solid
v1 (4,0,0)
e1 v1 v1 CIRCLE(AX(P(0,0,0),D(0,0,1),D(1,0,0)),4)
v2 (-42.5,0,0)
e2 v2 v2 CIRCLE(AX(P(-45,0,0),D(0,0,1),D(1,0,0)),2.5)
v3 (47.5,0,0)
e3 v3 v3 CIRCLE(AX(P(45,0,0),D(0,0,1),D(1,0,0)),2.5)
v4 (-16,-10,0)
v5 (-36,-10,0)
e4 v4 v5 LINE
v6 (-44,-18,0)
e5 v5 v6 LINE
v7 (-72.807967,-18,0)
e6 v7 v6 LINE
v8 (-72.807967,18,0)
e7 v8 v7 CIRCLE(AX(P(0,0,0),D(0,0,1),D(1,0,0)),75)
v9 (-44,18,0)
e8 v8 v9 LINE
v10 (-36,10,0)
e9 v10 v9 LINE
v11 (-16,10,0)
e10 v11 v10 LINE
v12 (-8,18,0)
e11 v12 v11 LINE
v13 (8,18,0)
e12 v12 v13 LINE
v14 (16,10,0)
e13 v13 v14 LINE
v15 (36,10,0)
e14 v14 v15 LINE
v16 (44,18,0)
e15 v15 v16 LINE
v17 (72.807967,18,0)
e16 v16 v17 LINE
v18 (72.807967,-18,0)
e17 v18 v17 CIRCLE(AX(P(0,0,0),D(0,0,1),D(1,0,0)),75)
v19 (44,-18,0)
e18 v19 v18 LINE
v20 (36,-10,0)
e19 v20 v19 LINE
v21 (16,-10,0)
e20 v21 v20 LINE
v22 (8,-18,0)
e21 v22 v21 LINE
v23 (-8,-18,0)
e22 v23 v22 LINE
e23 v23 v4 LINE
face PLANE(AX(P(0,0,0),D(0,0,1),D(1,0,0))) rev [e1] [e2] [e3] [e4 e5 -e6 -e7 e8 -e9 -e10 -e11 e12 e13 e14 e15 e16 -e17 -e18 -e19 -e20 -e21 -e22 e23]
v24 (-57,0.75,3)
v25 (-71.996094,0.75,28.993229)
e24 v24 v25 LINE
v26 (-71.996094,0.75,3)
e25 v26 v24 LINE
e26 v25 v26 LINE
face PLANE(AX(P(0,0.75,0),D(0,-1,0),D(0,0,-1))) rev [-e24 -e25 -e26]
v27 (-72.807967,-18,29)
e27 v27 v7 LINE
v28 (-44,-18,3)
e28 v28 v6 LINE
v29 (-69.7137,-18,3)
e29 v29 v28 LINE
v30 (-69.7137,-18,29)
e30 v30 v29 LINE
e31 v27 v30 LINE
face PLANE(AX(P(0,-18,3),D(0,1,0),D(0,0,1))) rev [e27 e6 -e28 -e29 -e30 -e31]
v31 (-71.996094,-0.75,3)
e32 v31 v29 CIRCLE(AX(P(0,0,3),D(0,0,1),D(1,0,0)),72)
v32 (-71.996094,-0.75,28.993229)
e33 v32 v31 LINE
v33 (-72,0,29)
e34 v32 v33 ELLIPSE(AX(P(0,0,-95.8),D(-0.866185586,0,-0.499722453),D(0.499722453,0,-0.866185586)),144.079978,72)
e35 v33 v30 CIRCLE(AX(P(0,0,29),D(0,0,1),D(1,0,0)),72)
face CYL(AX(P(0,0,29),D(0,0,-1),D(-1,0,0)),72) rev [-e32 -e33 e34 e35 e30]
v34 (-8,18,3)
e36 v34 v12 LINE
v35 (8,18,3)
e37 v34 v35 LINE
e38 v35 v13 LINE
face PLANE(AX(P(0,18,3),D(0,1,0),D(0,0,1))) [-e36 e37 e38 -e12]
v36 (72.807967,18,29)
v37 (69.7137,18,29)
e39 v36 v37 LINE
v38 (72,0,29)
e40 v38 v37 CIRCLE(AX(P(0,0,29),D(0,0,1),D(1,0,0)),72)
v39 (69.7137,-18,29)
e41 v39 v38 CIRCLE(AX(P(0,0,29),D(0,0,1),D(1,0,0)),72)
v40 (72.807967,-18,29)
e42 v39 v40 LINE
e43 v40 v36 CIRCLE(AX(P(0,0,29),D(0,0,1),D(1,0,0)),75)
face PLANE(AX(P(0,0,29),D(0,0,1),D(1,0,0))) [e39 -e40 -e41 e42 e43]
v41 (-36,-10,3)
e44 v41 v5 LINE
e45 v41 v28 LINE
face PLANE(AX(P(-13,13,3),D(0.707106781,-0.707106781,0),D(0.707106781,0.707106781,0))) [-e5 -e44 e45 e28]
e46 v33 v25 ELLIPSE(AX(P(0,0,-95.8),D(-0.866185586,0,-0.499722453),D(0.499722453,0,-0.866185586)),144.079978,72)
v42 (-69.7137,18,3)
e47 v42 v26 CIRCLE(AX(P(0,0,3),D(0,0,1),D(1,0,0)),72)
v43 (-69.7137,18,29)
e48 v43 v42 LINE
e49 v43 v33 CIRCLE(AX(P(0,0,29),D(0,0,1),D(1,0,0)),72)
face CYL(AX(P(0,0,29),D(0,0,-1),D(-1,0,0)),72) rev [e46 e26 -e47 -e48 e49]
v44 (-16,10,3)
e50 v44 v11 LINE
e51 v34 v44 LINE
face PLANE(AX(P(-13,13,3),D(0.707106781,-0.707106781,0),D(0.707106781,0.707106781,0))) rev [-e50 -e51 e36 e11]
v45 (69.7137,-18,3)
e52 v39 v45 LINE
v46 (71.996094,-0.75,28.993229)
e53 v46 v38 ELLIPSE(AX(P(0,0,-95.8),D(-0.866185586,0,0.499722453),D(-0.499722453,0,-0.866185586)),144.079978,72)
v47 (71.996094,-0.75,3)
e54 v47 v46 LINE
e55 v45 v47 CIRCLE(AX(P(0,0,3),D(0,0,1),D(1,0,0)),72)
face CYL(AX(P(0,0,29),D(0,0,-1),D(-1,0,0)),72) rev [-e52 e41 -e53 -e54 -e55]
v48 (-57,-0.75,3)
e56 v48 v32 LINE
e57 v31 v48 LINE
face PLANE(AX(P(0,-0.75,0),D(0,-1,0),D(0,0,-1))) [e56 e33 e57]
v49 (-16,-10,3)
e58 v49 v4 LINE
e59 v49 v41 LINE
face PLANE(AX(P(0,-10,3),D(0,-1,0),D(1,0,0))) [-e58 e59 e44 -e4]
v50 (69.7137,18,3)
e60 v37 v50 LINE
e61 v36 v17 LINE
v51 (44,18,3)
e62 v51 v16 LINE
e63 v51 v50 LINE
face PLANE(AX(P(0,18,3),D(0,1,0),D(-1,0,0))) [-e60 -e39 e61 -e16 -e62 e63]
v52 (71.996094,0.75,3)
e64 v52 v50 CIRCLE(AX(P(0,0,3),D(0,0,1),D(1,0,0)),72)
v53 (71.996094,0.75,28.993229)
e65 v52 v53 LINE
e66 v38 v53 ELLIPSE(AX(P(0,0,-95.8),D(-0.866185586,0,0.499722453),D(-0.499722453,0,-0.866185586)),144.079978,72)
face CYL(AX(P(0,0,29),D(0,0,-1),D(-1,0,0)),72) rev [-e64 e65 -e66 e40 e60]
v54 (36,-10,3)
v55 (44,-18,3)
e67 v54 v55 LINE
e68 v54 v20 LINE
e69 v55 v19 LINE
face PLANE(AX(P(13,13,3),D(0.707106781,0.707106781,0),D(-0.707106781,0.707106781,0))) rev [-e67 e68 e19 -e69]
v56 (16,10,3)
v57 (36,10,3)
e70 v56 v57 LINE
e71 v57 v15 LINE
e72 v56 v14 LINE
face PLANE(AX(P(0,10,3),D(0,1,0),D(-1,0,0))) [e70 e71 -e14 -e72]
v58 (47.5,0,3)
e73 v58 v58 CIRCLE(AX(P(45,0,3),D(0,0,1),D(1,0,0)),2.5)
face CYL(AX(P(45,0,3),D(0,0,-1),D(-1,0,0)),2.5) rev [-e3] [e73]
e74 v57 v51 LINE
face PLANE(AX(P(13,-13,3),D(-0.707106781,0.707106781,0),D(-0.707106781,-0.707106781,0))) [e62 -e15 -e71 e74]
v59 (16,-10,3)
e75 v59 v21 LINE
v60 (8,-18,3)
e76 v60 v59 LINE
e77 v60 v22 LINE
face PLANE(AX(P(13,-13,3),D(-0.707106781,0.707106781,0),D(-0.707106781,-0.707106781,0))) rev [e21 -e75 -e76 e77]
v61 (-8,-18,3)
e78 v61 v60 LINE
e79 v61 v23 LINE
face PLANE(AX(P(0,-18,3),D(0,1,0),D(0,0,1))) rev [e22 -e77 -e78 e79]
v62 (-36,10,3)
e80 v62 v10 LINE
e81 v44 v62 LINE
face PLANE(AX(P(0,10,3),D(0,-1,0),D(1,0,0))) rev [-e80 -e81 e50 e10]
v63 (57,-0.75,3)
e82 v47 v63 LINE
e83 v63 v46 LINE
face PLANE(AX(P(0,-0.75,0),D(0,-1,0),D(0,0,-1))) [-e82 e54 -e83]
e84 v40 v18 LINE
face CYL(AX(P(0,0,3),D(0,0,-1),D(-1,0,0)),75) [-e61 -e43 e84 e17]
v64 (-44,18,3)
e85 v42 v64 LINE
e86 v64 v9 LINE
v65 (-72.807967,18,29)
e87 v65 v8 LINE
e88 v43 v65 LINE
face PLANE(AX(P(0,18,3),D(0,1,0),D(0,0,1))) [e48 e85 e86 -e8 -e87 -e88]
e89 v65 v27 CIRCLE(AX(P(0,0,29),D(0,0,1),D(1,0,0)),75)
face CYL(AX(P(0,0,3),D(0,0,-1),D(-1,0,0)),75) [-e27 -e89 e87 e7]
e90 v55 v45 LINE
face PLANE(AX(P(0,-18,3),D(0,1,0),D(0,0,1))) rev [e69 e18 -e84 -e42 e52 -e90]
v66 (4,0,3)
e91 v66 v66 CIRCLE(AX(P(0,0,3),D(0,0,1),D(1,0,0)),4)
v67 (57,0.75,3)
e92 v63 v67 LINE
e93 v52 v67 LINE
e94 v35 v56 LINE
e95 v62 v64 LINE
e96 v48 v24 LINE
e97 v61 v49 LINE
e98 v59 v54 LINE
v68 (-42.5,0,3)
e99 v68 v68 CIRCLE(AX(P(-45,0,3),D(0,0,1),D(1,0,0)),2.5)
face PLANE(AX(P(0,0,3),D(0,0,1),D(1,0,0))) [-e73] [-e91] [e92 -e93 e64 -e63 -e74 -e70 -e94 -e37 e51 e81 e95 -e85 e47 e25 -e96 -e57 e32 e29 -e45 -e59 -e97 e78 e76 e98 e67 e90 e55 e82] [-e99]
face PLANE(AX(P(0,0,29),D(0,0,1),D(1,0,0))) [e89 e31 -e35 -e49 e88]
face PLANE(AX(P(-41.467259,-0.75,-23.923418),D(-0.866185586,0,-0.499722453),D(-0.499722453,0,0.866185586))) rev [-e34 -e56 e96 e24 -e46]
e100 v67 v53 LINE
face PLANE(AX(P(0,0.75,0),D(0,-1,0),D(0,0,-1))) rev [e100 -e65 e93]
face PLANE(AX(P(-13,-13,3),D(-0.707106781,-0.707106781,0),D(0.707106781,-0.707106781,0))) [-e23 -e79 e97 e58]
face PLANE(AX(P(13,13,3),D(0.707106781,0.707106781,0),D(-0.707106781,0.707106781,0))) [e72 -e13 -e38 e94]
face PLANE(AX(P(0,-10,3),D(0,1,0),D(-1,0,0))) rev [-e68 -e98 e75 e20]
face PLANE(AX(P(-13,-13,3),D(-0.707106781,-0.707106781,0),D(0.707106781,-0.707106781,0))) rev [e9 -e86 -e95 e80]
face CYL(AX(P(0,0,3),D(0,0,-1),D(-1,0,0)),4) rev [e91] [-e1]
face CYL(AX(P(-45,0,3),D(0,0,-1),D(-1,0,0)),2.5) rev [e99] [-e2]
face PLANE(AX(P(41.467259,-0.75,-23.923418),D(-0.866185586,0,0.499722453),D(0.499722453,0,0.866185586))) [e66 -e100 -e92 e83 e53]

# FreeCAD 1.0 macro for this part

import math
import FreeCAD as App
import Part
import Sketcher
Q = App.Units.Quantity


def add_polygon(sketch, points):
    """Adds a closed chain of lines whose ends are joined by coincident constraints."""
    first, n = sketch.GeometryCount, len(points)
    for a, b in zip(points, points[1:] + points[:1]):
        sketch.addGeometry(Part.LineSegment(App.Vector(*a, 0), App.Vector(*b, 0)), False)
    for i in range(n):
        sketch.addConstraint(Sketcher.Constraint("Coincident", first + i, 2, first + (i + 1) % n, 1))

doc = App.newDocument("Part")
params = doc.addObject("Spreadsheet::Sheet", "Params")
for row, (alias, value) in enumerate([
    ("sketch1_diameter", "5 mm"),
    ("sketch1_diameter2", "8 mm"),
    ("sketch1_radius", "75 mm"),
    ("sketch1_width", "20 mm"),
    ("sketch1_width2", "16 mm"),
    ("pad1_length", "3 mm"),
    ("sketch2_radius", "72 mm"),
    ("sketch2_radius2", "75 mm"),
    ("pad2_length", "26 mm"),
    ("sketch3_width", "15 mm"),
    ("sketch3_height", "26 mm"),
    ("pad3_length", "1.5 mm"),
], start=1):
    params.set(f"A{row}", alias)
    params.set(f"B{row}", "=" + value)
    params.setAlias(f"B{row}", alias)

body = doc.addObject("PartDesign::Body", "Body")

# Sketch on XY plane
sketch1 = body.newObject("Sketcher::SketchObject", "Sketch")
sketch1.AttachmentSupport = (doc.getObject("XY_Plane"), [""])
sketch1.MapMode = "FlatFace"
sketch1.addGeometry([
    Part.LineSegment(App.Vector(-44, 18, 0), App.Vector(-72.8, 18, 0)),  # 0
    Part.ArcOfCircle(Part.Circle(App.Vector(0, 0, 0), App.Vector(0, 0, 1), 75), math.radians(166), math.radians(194)),  # 1
    Part.LineSegment(App.Vector(-72.8, -18, 0), App.Vector(-44, -18, 0)),  # 2
    Part.LineSegment(App.Vector(-44, -18, 0), App.Vector(-36, -10, 0)),  # 3
    Part.LineSegment(App.Vector(-36, -10, 0), App.Vector(-16, -10, 0)),  # 4
    Part.LineSegment(App.Vector(-16, -10, 0), App.Vector(-8, -18, 0)),  # 5
    Part.LineSegment(App.Vector(-8, -18, 0), App.Vector(8, -18, 0)),  # 6
    Part.LineSegment(App.Vector(8, -18, 0), App.Vector(16, -10, 0)),  # 7
    Part.LineSegment(App.Vector(16, -10, 0), App.Vector(36, -10, 0)),  # 8
    Part.LineSegment(App.Vector(36, -10, 0), App.Vector(44, -18, 0)),  # 9
    Part.LineSegment(App.Vector(44, -18, 0), App.Vector(72.8, -18, 0)),  # 10
    Part.ArcOfCircle(Part.Circle(App.Vector(0, 0, 0), App.Vector(0, 0, 1), 75), math.radians(-13.89), math.radians(0)),  # 11
    Part.ArcOfCircle(Part.Circle(App.Vector(0, 0, 0), App.Vector(0, 0, 1), 75), math.radians(0), math.radians(13.89)),  # 12
    Part.LineSegment(App.Vector(72.8, 18, 0), App.Vector(44, 18, 0)),  # 13
    Part.LineSegment(App.Vector(44, 18, 0), App.Vector(36, 10, 0)),  # 14
    Part.LineSegment(App.Vector(36, 10, 0), App.Vector(16, 10, 0)),  # 15
    Part.LineSegment(App.Vector(16, 10, 0), App.Vector(8, 18, 0)),  # 16
    Part.LineSegment(App.Vector(8, 18, 0), App.Vector(-8, 18, 0)),  # 17
    Part.LineSegment(App.Vector(-8, 18, 0), App.Vector(-16, 10, 0)),  # 18
    Part.LineSegment(App.Vector(-16, 10, 0), App.Vector(-36, 10, 0)),  # 19
    Part.LineSegment(App.Vector(-36, 10, 0), App.Vector(-44, 18, 0)),  # 20
    Part.Circle(App.Vector(-45, 0, 0), App.Vector(0, 0, 1), 2.5),  # 21
    Part.Circle(App.Vector(0, 0, 0), App.Vector(0, 0, 1), 4),  # 22
    Part.Circle(App.Vector(45, 0, 0), App.Vector(0, 0, 1), 2.5),  # 23
], False)
sketch1.addConstraint([
    Sketcher.Constraint("Coincident", 0, 2, 1, 1),
    Sketcher.Constraint("Coincident", 1, 2, 2, 1),
    Sketcher.Constraint("Coincident", 2, 2, 3, 1),
    Sketcher.Constraint("Coincident", 3, 2, 4, 1),
    Sketcher.Constraint("Coincident", 4, 2, 5, 1),
    Sketcher.Constraint("Coincident", 5, 2, 6, 1),
    Sketcher.Constraint("Coincident", 6, 2, 7, 1),
    Sketcher.Constraint("Coincident", 7, 2, 8, 1),
    Sketcher.Constraint("Coincident", 8, 2, 9, 1),
    Sketcher.Constraint("Coincident", 9, 2, 10, 1),
    Sketcher.Constraint("Coincident", 10, 2, 11, 1),
    Sketcher.Constraint("Tangent", 11, 2, 12, 1),
    Sketcher.Constraint("Coincident", 12, 2, 13, 1),
    Sketcher.Constraint("Coincident", 13, 2, 14, 1),
    Sketcher.Constraint("Coincident", 14, 2, 15, 1),
    Sketcher.Constraint("Coincident", 15, 2, 16, 1),
    Sketcher.Constraint("Coincident", 16, 2, 17, 1),
    Sketcher.Constraint("Coincident", 17, 2, 18, 1),
    Sketcher.Constraint("Coincident", 18, 2, 19, 1),
    Sketcher.Constraint("Coincident", 19, 2, 20, 1),
    Sketcher.Constraint("Coincident", 20, 2, 0, 1),
    Sketcher.Constraint("Horizontal", 0),
    Sketcher.Constraint("Horizontal", 2),
    Sketcher.Constraint("Horizontal", 4),
    Sketcher.Constraint("Horizontal", 6),
    Sketcher.Constraint("Horizontal", 8),
    Sketcher.Constraint("Horizontal", 10),
    Sketcher.Constraint("Horizontal", 13),
    Sketcher.Constraint("Horizontal", 15),
    Sketcher.Constraint("Horizontal", 17),
    Sketcher.Constraint("Horizontal", 19),
    Sketcher.Constraint("Coincident", 1, 3, -1, 1),
    Sketcher.Constraint("Coincident", 11, 3, -1, 1),
    Sketcher.Constraint("Coincident", 22, 3, -1, 1),
    Sketcher.Constraint("Equal", 1, 11),
    Sketcher.Constraint("Equal", 11, 12),
    Sketcher.Constraint("Equal", 21, 23),
    Sketcher.Constraint("Symmetric", 21, 3, 23, 3, -1, 1),
    Sketcher.Constraint("Symmetric", 2, 2, 13, 2, -1, 1),
    Sketcher.Constraint("Symmetric", 3, 2, 14, 2, -1, 1),
    Sketcher.Constraint("Symmetric", 5, 2, 16, 2, -1, 1),
    Sketcher.Constraint("Symmetric", 7, 2, 18, 2, -1, 1),
    Sketcher.Constraint("Symmetric", 9, 2, 20, 2, -1, 1),
    Sketcher.Constraint("Symmetric", 4, 2, 7, 2, -2),
    Sketcher.Constraint("Symmetric", 2, 2, 9, 2, -2),
    Sketcher.Constraint("PointOnObject", 21, 3, -1),
    Sketcher.Constraint("PointOnObject", 11, 2, -1),
    Sketcher.Constraint("Perpendicular", 3, 5),
    Sketcher.Constraint("Perpendicular", 5, 7),
    Sketcher.Constraint("Perpendicular", 7, 9),
    Sketcher.Constraint("Perpendicular", 14, 16),
    Sketcher.Constraint("Perpendicular", 16, 18),
    Sketcher.Constraint("Perpendicular", 18, 20),
    Sketcher.Constraint("Horizontal", 2, 2, 5, 2),
    Sketcher.Constraint("Vertical", 8, 2, 14, 2),
    Sketcher.Constraint("Diameter", 21, Q("5 mm")),
    Sketcher.Constraint("Diameter", 22, Q("8 mm")),
    Sketcher.Constraint("Radius", 1, Q("75 mm")),
    Sketcher.Constraint("DistanceX", 4, 1, 4, 2, Q("20 mm")),
    Sketcher.Constraint("DistanceX", 6, 1, 6, 2, Q("16 mm")),
    Sketcher.Constraint("DistanceX", 21, 3, -1, 1, Q("45 mm")),
    Sketcher.Constraint("DistanceY", -1, 1, 0, 2, Q("18 mm")),
    Sketcher.Constraint("DistanceX", 2, 2, -1, 1, Q("44 mm")),
])
sketch1.setExpression("Constraints[55]", "Params.sketch1_diameter")
sketch1.setExpression("Constraints[56]", "Params.sketch1_diameter2")
sketch1.setExpression("Constraints[57]", "Params.sketch1_radius")
sketch1.setExpression("Constraints[58]", "Params.sketch1_width")
sketch1.setExpression("Constraints[59]", "Params.sketch1_width2")
pad1 = body.newObject("PartDesign::Pad", "Pad")
pad1.Profile = sketch1
pad1.setExpression("Length", "Params.pad1_length")

# Sketch on XY plane
sketch2 = body.newObject("Sketcher::SketchObject", "Sketch001")
sketch2.AttachmentSupport = (doc.getObject("XY_Plane"), [""])
sketch2.MapMode = "FlatFace"
sketch2.AttachmentOffset = App.Placement(App.Vector(0, 0, 3), App.Rotation())
sketch2.addGeometry([
    Part.ArcOfCircle(Part.Circle(App.Vector(0, 0, 0), App.Vector(0, 0, 1), 72), math.radians(-14), math.radians(14)),  # 0
    Part.LineSegment(App.Vector(69.7, -18, 0), App.Vector(72.8, -18, 0)),  # 1
    Part.ArcOfCircle(Part.Circle(App.Vector(0, 0, 0), App.Vector(0, 0, 1), 75), math.radians(-14), math.radians(14)),  # 2
    Part.LineSegment(App.Vector(72.8, 18, 0), App.Vector(69.7, 18, 0)),  # 3
    Part.ArcOfCircle(Part.Circle(App.Vector(0, 0, 0), App.Vector(0, 0, 1), 75), math.radians(166), math.radians(194)),  # 4
    Part.LineSegment(App.Vector(-72.8, -18, 0), App.Vector(-69.7, -18, 0)),  # 5
    Part.ArcOfCircle(Part.Circle(App.Vector(0, 0, 0), App.Vector(0, 0, 1), 72), math.radians(166), math.radians(194)),  # 6
    Part.LineSegment(App.Vector(-69.7, 18, 0), App.Vector(-72.8, 18, 0)),  # 7
], False)
sketch2.addConstraint([
    Sketcher.Constraint("Coincident", 0, 1, 1, 1),
    Sketcher.Constraint("Coincident", 1, 2, 2, 1),
    Sketcher.Constraint("Coincident", 2, 2, 3, 1),
    Sketcher.Constraint("Coincident", 3, 2, 0, 2),
    Sketcher.Constraint("Coincident", 4, 2, 5, 1),
    Sketcher.Constraint("Coincident", 5, 2, 6, 2),
    Sketcher.Constraint("Coincident", 6, 1, 7, 1),
    Sketcher.Constraint("Coincident", 7, 2, 4, 1),
    Sketcher.Constraint("Horizontal", 1),
    Sketcher.Constraint("Horizontal", 3),
    Sketcher.Constraint("Horizontal", 5),
    Sketcher.Constraint("Horizontal", 7),
    Sketcher.Constraint("Coincident", 0, 3, -1, 1),
    Sketcher.Constraint("Coincident", 2, 3, -1, 1),
    Sketcher.Constraint("Coincident", 4, 3, -1, 1),
    Sketcher.Constraint("Coincident", 6, 3, -1, 1),
    Sketcher.Constraint("Equal", 2, 4),
    Sketcher.Constraint("Equal", 0, 6),
    Sketcher.Constraint("Horizontal", 1, 2, 4, 2),
    Sketcher.Constraint("Horizontal", 3, 2, 6, 1),
    Sketcher.Constraint("Vertical", 1, 2, 2, 2),
    Sketcher.Constraint("Radius", 0, Q("72 mm")),
    Sketcher.Constraint("Radius", 2, Q("75 mm")),
    Sketcher.Constraint("DistanceY", 0, 1, -1, 1, Q("18 mm")),
])
sketch2.setExpression("Constraints[21]", "Params.sketch2_radius")
sketch2.setExpression("Constraints[22]", "Params.sketch2_radius2")
pad2 = body.newObject("PartDesign::Pad", "Pad001")
pad2.Profile = sketch2
pad2.setExpression("Length", "Params.pad2_length")

# Sketch on XZ plane
sketch3 = body.newObject("Sketcher::SketchObject", "Sketch002")
sketch3.AttachmentSupport = (doc.getObject("XZ_Plane"), [""])
sketch3.MapMode = "FlatFace"
add_polygon(sketch3, [(57, 3), (72, 3), (72, 29)])  # lines 0-2
add_polygon(sketch3, [(-72, 29), (-72, 3), (-57, 3)])  # lines 3-5
sketch3.addConstraint([
    Sketcher.Constraint("Horizontal", 0),
    Sketcher.Constraint("Vertical", 1),
    Sketcher.Constraint("Vertical", 3),
    Sketcher.Constraint("Horizontal", 4),
    Sketcher.Constraint("Symmetric", 0, 2, 3, 2, -2),
    Sketcher.Constraint("Horizontal", 1, 2, 5, 2),
    Sketcher.Constraint("Equal", 0, 4),
    Sketcher.Constraint("DistanceX", 0, 1, 0, 2, Q("15 mm")),
    Sketcher.Constraint("DistanceY", 1, 1, 1, 2, Q("26 mm")),
    Sketcher.Constraint("DistanceX", -1, 1, 0, 2, Q("72 mm")),
    Sketcher.Constraint("DistanceY", -1, 1, 0, 2, Q("3 mm")),
])
sketch3.setExpression("Constraints[13]", "Params.sketch3_width")
sketch3.setExpression("Constraints[14]", "Params.sketch3_height")
pad3 = body.newObject("PartDesign::Pad", "Pad002")
pad3.Profile = sketch3
pad3.setExpression("Length", "Params.pad3_length")
pad3.Midplane = True
doc.recompute()

mirrored = body.newObject("PartDesign::Mirrored", "Mirrored")
mirrored.Originals = [pad3]
mirrored.MirrorPlane = (doc.getObject("YZ_Plane"), [""])
body.Tip = mirrored

doc.recompute()
